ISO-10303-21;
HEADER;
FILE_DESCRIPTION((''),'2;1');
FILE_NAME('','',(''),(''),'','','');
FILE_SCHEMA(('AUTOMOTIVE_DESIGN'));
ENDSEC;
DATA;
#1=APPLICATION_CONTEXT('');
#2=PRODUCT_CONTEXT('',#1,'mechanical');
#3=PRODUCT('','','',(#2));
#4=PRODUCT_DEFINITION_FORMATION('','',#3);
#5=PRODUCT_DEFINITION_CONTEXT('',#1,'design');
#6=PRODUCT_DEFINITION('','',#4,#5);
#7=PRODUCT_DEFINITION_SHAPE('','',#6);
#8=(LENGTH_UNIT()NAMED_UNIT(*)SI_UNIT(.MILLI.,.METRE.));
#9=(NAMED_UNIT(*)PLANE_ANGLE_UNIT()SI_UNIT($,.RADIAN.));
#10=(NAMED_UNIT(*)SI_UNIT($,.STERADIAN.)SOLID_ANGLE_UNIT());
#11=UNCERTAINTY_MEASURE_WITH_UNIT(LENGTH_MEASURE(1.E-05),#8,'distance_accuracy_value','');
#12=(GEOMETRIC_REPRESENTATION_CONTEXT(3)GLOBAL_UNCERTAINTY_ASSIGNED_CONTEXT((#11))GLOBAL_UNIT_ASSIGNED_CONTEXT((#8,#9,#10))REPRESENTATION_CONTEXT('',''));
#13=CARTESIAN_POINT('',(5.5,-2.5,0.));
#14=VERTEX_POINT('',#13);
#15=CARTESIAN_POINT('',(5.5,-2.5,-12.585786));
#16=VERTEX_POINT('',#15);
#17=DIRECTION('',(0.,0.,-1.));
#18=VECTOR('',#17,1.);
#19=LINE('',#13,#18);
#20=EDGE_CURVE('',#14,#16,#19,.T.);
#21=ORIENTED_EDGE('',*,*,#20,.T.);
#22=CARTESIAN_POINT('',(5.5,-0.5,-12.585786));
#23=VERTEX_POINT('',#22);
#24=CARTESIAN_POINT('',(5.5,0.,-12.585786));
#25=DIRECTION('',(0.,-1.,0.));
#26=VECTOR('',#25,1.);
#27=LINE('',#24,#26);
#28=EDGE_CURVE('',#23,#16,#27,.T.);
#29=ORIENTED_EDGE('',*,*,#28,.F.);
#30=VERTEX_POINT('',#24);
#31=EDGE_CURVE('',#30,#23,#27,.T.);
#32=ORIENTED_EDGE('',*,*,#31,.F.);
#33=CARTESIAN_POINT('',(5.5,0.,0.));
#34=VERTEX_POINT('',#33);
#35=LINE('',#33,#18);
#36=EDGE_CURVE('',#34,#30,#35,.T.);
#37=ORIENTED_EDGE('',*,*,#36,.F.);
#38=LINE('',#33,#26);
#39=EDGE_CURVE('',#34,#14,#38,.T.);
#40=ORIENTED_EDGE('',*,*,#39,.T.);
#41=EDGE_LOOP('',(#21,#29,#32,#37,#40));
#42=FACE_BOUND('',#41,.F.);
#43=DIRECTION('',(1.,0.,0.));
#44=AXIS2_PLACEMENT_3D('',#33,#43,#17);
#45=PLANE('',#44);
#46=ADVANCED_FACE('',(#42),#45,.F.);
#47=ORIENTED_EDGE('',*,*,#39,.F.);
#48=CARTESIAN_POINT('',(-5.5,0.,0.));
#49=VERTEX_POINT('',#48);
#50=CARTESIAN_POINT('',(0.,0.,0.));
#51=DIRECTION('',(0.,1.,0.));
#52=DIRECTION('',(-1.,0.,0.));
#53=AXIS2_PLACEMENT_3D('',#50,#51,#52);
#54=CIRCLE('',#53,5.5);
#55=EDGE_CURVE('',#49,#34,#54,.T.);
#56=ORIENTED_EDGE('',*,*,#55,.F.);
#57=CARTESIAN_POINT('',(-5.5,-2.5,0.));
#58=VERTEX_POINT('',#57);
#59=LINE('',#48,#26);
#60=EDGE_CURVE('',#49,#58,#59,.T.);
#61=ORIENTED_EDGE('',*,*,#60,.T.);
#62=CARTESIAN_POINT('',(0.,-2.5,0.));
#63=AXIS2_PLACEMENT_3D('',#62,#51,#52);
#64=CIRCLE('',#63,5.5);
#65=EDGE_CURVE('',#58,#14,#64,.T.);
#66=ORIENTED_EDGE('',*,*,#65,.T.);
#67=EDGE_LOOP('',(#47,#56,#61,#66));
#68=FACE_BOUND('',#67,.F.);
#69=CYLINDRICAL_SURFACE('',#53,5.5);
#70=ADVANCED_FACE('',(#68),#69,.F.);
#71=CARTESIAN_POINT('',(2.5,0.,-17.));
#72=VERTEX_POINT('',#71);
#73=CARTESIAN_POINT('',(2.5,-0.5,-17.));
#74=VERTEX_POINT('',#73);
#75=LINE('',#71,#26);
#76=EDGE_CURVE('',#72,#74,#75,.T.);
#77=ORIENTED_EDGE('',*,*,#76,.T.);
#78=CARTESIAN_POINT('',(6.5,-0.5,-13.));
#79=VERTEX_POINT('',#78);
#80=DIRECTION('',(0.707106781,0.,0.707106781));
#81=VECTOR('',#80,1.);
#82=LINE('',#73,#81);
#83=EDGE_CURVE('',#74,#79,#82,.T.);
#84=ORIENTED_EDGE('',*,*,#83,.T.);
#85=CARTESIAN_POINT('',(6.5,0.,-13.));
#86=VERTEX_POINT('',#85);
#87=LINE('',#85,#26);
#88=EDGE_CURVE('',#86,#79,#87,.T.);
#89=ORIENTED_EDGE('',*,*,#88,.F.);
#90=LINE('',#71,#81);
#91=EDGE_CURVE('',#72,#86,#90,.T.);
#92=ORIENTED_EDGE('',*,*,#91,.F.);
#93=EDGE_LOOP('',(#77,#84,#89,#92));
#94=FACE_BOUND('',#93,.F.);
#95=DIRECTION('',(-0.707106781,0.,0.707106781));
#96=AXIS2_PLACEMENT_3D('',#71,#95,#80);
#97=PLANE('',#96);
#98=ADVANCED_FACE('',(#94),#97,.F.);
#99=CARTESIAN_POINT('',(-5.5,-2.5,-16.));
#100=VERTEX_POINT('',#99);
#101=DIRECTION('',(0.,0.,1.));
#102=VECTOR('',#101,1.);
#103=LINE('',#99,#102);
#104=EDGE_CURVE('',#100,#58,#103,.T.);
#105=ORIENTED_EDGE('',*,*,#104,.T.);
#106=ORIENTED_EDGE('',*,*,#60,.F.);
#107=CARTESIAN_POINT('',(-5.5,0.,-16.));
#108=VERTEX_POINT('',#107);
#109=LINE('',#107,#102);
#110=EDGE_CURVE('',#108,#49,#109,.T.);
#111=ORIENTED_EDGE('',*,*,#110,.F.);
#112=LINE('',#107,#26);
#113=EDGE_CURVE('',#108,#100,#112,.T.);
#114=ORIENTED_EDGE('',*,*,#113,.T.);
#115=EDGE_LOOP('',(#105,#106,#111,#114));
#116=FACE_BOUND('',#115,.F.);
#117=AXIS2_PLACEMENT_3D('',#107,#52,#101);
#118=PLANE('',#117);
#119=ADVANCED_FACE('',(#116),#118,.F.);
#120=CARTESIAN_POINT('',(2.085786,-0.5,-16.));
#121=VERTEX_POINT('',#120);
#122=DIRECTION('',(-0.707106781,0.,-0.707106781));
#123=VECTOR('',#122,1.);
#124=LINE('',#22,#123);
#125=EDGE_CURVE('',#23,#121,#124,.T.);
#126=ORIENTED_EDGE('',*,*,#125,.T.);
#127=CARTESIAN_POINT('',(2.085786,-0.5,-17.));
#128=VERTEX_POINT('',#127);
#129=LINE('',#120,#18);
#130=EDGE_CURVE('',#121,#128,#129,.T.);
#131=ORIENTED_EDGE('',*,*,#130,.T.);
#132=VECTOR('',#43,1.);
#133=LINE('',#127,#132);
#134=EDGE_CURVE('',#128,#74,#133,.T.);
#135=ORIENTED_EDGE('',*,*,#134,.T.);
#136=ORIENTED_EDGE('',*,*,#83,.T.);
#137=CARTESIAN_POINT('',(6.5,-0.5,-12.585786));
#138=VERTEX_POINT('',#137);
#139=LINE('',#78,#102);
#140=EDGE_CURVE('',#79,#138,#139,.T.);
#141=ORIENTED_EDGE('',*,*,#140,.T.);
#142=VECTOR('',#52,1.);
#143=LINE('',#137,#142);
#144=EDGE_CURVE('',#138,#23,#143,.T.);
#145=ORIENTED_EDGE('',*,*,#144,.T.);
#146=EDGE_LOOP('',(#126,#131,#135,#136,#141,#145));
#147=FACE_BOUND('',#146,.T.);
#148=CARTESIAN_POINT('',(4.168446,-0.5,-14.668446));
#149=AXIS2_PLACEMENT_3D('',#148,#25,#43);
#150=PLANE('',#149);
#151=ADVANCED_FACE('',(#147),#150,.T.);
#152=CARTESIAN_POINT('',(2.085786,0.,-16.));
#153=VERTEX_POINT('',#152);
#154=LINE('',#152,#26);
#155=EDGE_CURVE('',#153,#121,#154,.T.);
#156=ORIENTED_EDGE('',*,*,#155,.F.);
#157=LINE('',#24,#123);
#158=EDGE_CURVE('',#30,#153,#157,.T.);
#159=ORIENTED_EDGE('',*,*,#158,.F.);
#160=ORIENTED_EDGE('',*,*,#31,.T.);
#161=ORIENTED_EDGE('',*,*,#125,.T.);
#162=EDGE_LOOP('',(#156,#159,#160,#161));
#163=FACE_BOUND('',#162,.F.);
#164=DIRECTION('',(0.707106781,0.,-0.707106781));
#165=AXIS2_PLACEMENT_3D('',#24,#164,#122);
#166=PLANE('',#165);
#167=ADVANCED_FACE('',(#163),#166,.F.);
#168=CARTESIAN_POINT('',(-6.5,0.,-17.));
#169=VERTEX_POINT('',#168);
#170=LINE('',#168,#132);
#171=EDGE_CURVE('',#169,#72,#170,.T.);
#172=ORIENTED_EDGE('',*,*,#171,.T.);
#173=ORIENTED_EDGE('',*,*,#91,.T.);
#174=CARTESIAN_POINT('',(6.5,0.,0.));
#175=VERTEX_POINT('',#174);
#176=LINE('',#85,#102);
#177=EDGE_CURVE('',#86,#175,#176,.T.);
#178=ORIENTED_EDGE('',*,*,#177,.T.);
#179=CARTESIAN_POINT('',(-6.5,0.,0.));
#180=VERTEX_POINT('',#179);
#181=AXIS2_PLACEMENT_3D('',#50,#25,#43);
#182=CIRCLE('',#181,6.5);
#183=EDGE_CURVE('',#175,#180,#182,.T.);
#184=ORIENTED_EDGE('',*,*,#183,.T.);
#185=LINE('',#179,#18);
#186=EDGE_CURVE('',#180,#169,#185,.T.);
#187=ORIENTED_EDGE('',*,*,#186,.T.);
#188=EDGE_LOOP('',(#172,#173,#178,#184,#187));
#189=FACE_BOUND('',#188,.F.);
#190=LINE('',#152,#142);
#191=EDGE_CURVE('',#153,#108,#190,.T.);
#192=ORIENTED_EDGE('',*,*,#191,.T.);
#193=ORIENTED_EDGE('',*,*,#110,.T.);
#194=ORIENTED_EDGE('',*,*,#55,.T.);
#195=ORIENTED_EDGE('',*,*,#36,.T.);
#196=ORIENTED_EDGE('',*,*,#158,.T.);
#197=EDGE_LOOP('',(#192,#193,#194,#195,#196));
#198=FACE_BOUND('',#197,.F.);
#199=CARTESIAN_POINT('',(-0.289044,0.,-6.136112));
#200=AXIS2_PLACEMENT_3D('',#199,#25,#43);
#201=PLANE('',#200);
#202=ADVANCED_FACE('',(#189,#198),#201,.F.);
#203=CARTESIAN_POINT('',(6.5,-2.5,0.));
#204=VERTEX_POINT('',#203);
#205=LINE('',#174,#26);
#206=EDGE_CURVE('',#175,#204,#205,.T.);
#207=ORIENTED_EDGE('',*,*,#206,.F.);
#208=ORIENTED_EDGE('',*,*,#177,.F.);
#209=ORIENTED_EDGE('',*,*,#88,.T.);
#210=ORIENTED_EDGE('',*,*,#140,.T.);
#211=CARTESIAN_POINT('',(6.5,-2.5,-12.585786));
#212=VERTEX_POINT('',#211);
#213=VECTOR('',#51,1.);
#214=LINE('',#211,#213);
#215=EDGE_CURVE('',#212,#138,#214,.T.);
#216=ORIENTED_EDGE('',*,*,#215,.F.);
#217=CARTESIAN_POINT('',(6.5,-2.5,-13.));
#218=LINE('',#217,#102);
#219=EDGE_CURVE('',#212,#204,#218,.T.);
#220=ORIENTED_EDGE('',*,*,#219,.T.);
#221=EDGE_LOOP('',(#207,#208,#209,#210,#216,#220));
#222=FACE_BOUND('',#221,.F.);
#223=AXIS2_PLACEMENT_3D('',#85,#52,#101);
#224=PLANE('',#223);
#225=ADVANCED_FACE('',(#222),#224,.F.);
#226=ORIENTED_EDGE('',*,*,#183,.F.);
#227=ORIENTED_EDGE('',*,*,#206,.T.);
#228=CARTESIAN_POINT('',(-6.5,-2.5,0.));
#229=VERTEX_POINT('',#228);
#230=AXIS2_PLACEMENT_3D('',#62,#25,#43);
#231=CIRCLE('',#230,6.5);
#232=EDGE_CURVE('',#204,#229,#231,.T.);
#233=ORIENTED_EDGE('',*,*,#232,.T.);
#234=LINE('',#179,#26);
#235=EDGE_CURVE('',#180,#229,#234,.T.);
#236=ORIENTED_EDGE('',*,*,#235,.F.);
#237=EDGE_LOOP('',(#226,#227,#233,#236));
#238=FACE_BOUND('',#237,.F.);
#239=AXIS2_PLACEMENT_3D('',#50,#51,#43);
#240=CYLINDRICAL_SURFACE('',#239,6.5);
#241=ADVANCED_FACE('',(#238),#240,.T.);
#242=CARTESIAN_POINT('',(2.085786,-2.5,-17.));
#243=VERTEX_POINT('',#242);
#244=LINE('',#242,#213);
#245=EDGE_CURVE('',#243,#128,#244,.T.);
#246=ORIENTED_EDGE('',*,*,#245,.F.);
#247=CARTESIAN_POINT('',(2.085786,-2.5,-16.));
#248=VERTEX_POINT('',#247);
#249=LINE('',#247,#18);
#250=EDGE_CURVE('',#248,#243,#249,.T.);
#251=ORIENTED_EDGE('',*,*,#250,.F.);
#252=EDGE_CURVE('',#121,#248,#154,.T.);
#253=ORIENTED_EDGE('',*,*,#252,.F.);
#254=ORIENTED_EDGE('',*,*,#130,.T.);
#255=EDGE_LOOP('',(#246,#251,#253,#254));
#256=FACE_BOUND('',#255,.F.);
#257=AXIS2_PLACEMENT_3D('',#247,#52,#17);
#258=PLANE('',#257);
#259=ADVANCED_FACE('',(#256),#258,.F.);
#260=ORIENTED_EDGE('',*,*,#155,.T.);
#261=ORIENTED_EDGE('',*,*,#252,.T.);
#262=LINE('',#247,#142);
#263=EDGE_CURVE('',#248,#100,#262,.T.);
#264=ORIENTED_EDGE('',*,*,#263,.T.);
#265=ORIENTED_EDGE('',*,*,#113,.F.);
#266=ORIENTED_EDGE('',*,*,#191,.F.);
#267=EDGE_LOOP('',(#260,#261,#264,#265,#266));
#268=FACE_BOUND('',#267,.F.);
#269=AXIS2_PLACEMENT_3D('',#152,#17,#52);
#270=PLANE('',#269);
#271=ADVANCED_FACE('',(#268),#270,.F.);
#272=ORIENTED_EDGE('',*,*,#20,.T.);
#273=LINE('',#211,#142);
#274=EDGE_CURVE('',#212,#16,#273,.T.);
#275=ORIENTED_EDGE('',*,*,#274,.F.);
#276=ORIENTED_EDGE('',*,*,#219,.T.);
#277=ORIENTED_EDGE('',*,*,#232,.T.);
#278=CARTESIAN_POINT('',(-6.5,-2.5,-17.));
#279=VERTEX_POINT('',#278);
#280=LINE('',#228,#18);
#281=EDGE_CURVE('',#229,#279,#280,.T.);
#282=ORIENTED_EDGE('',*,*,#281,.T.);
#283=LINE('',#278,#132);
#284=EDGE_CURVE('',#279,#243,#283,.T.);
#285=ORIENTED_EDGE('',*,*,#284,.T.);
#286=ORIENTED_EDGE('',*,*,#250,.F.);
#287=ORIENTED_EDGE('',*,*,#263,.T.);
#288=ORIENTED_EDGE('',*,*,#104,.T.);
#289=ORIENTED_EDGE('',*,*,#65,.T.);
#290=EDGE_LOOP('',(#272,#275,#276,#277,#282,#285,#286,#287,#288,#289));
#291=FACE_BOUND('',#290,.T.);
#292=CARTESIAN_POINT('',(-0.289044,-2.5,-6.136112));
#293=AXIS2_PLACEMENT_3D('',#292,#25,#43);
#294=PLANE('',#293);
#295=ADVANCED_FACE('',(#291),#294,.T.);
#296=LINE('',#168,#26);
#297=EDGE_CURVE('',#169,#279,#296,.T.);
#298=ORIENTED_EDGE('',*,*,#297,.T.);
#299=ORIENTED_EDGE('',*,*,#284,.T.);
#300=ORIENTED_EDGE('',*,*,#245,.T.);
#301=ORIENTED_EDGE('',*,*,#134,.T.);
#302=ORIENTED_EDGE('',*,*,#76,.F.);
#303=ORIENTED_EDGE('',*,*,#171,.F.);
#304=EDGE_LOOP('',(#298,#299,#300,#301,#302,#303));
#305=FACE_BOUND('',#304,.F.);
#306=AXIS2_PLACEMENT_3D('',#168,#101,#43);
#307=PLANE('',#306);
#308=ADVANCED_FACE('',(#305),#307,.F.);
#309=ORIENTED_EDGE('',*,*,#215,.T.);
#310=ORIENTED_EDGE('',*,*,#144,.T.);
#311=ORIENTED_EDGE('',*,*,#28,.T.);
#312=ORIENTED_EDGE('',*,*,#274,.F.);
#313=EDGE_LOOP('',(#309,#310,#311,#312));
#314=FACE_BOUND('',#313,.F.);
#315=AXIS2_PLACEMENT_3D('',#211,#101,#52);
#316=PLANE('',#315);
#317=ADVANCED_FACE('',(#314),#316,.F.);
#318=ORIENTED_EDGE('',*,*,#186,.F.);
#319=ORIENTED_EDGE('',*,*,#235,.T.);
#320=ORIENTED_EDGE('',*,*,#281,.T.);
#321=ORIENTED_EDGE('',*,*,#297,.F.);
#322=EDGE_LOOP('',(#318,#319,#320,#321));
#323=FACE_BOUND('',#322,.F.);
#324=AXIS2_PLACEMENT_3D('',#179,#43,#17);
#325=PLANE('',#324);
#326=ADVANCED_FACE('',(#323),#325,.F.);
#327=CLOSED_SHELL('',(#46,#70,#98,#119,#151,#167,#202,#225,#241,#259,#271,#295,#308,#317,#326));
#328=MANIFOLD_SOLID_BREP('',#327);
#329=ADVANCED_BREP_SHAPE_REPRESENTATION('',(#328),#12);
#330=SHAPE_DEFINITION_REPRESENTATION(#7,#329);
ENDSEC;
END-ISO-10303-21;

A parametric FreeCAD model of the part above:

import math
import FreeCAD as App
import Part
import Sketcher

V = App.Vector


def add_polygon(sketch, points):
    """Adds a closed chain of lines whose ends are joined by coincident constraints."""
    first, n = sketch.GeometryCount, len(points)
    for a, b in zip(points, points[1:] + points[:1]):
        sketch.addGeometry(Part.LineSegment(App.Vector(*a, 0), App.Vector(*b, 0)), False)
    for i in range(n):
        sketch.addConstraint(Sketcher.Constraint("Coincident", first + i, 2, first + (i + 1) % n, 1))

doc = App.newDocument("Part")
body = doc.addObject("PartDesign::Body", "Body")

# Sketch on XZ plane
sketch1 = body.newObject("Sketcher::SketchObject", "Sketch")
sketch1.AttachmentSupport = (doc.getObject("XZ_Plane"), [""])
sketch1.MapMode = "FlatFace"
sketch1.addGeometry(Part.LineSegment(V(6.5, -13, 0), V(6.5, 0, 0)), False)
sketch1.addGeometry(Part.ArcOfCircle(Part.Circle(V(0, 0, 0), V(0, 0, 1), 6.5), math.radians(0), math.radians(180)), False)
sketch1.addGeometry(Part.LineSegment(V(-6.5, 0, 0), V(-6.5, -17, 0)), False)
sketch1.addGeometry(Part.LineSegment(V(-6.5, -17, 0), V(2.5, -17, 0)), False)
sketch1.addGeometry(Part.LineSegment(V(2.5, -17, 0), V(6.5, -13, 0)), False)
sketch1.addGeometry(Part.LineSegment(V(2.1, -16, 0), V(-5.5, -16, 0)), False)
sketch1.addGeometry(Part.LineSegment(V(-5.5, -16, 0), V(-5.5, 0, 0)), False)
sketch1.addGeometry(Part.ArcOfCircle(Part.Circle(V(0, 0, 0), V(0, 0, 1), 5.5), math.radians(0), math.radians(180)), False)
sketch1.addGeometry(Part.LineSegment(V(5.5, 0, 0), V(5.5, -12.6, 0)), False)
sketch1.addGeometry(Part.LineSegment(V(5.5, -12.6, 0), V(2.1, -16, 0)), False)
sketch1.addConstraint(Sketcher.Constraint("Tangent", 0, 2, 1, 1))
sketch1.addConstraint(Sketcher.Constraint("Tangent", 1, 2, 2, 1))
sketch1.addConstraint(Sketcher.Constraint("Coincident", 2, 2, 3, 1))
sketch1.addConstraint(Sketcher.Constraint("Coincident", 3, 2, 4, 1))
sketch1.addConstraint(Sketcher.Constraint("Coincident", 4, 2, 0, 1))
sketch1.addConstraint(Sketcher.Constraint("Coincident", 5, 2, 6, 1))
sketch1.addConstraint(Sketcher.Constraint("Tangent", 6, 2, 7, 2))
sketch1.addConstraint(Sketcher.Constraint("Tangent", 7, 1, 8, 1))
sketch1.addConstraint(Sketcher.Constraint("Coincident", 8, 2, 9, 1))
sketch1.addConstraint(Sketcher.Constraint("Coincident", 9, 2, 5, 1))
sketch1.addConstraint(Sketcher.Constraint("Vertical", 0))
sketch1.addConstraint(Sketcher.Constraint("Vertical", 2))
sketch1.addConstraint(Sketcher.Constraint("Horizontal", 3))
sketch1.addConstraint(Sketcher.Constraint("Horizontal", 5))
sketch1.addConstraint(Sketcher.Constraint("Vertical", 6))
sketch1.addConstraint(Sketcher.Constraint("Vertical", 8))
sketch1.addConstraint(Sketcher.Constraint("Coincident", 1, 3, -1, 1))
sketch1.addConstraint(Sketcher.Constraint("Coincident", 7, 3, -1, 1))
sketch1.addConstraint(Sketcher.Constraint("Parallel", 4, 9))
sketch1.addConstraint(Sketcher.Constraint("Radius", 1, 6.5))
sketch1.addConstraint(Sketcher.Constraint("Radius", 7, 5.5))
sketch1.addConstraint(Sketcher.Constraint("DistanceX", 3, 1, 3, 2, 9.0))
sketch1.addConstraint(Sketcher.Constraint("DistanceY", 0, 1, 0, 2, 13.0))
sketch1.addConstraint(Sketcher.Constraint("DistanceY", 2, 2, 2, 1, 17.0))
sketch1.addConstraint(Sketcher.Constraint("DistanceY", 6, 1, 6, 2, 16.0))
sketch1.addConstraint(Sketcher.Constraint("DistanceX", 5, 2, 5, 1, 7.585786))
pad1 = body.newObject("PartDesign::Pad", "Pad")
pad1.Profile = sketch1
pad1.Length = 2.5

# Sketch on XZ plane
sketch2 = body.newObject("Sketcher::SketchObject", "Sketch001")
sketch2.AttachmentSupport = (doc.getObject("XZ_Plane"), [""])
sketch2.MapMode = "FlatFace"
sketch2.AttachmentOffset = App.Placement(V(0, 0, 2.5), App.Rotation())
add_polygon(sketch2, [(6.5, -12.59), (5.5, -12.59), (2.09, -16), (2.09, -17), (2.5, -17), (6.5, -13)])  # lines 0-5
sketch2.addConstraint(Sketcher.Constraint("Horizontal", 0))
sketch2.addConstraint(Sketcher.Constraint("Vertical", 2))
sketch2.addConstraint(Sketcher.Constraint("Horizontal", 3))
sketch2.addConstraint(Sketcher.Constraint("Vertical", 5))
sketch2.addConstraint(Sketcher.Constraint("Parallel", 1, 4))
sketch2.addConstraint(Sketcher.Constraint("Equal", 0, 2))
sketch2.addConstraint(Sketcher.Constraint("Equal", 3, 5))
sketch2.addConstraint(Sketcher.Constraint("DistanceX", 0, 2, 0, 1, 1.0))
sketch2.addConstraint(Sketcher.Constraint("DistanceY", 1, 2, -1, 1, 16.0))
sketch2.addConstraint(Sketcher.Constraint("DistanceY", 4, 2, -1, 1, 13.0))
sketch2.addConstraint(Sketcher.Constraint("DistanceX", -1, 1, 0, 2, 5.5))
sketch2.addConstraint(Sketcher.Constraint("DistanceX", 3, 1, 3, 2, 0.414214))
pocket1 = body.newObject("PartDesign::Pocket", "Pocket")
pocket1.Profile = sketch2
pocket1.Length = 2

doc.recompute()
